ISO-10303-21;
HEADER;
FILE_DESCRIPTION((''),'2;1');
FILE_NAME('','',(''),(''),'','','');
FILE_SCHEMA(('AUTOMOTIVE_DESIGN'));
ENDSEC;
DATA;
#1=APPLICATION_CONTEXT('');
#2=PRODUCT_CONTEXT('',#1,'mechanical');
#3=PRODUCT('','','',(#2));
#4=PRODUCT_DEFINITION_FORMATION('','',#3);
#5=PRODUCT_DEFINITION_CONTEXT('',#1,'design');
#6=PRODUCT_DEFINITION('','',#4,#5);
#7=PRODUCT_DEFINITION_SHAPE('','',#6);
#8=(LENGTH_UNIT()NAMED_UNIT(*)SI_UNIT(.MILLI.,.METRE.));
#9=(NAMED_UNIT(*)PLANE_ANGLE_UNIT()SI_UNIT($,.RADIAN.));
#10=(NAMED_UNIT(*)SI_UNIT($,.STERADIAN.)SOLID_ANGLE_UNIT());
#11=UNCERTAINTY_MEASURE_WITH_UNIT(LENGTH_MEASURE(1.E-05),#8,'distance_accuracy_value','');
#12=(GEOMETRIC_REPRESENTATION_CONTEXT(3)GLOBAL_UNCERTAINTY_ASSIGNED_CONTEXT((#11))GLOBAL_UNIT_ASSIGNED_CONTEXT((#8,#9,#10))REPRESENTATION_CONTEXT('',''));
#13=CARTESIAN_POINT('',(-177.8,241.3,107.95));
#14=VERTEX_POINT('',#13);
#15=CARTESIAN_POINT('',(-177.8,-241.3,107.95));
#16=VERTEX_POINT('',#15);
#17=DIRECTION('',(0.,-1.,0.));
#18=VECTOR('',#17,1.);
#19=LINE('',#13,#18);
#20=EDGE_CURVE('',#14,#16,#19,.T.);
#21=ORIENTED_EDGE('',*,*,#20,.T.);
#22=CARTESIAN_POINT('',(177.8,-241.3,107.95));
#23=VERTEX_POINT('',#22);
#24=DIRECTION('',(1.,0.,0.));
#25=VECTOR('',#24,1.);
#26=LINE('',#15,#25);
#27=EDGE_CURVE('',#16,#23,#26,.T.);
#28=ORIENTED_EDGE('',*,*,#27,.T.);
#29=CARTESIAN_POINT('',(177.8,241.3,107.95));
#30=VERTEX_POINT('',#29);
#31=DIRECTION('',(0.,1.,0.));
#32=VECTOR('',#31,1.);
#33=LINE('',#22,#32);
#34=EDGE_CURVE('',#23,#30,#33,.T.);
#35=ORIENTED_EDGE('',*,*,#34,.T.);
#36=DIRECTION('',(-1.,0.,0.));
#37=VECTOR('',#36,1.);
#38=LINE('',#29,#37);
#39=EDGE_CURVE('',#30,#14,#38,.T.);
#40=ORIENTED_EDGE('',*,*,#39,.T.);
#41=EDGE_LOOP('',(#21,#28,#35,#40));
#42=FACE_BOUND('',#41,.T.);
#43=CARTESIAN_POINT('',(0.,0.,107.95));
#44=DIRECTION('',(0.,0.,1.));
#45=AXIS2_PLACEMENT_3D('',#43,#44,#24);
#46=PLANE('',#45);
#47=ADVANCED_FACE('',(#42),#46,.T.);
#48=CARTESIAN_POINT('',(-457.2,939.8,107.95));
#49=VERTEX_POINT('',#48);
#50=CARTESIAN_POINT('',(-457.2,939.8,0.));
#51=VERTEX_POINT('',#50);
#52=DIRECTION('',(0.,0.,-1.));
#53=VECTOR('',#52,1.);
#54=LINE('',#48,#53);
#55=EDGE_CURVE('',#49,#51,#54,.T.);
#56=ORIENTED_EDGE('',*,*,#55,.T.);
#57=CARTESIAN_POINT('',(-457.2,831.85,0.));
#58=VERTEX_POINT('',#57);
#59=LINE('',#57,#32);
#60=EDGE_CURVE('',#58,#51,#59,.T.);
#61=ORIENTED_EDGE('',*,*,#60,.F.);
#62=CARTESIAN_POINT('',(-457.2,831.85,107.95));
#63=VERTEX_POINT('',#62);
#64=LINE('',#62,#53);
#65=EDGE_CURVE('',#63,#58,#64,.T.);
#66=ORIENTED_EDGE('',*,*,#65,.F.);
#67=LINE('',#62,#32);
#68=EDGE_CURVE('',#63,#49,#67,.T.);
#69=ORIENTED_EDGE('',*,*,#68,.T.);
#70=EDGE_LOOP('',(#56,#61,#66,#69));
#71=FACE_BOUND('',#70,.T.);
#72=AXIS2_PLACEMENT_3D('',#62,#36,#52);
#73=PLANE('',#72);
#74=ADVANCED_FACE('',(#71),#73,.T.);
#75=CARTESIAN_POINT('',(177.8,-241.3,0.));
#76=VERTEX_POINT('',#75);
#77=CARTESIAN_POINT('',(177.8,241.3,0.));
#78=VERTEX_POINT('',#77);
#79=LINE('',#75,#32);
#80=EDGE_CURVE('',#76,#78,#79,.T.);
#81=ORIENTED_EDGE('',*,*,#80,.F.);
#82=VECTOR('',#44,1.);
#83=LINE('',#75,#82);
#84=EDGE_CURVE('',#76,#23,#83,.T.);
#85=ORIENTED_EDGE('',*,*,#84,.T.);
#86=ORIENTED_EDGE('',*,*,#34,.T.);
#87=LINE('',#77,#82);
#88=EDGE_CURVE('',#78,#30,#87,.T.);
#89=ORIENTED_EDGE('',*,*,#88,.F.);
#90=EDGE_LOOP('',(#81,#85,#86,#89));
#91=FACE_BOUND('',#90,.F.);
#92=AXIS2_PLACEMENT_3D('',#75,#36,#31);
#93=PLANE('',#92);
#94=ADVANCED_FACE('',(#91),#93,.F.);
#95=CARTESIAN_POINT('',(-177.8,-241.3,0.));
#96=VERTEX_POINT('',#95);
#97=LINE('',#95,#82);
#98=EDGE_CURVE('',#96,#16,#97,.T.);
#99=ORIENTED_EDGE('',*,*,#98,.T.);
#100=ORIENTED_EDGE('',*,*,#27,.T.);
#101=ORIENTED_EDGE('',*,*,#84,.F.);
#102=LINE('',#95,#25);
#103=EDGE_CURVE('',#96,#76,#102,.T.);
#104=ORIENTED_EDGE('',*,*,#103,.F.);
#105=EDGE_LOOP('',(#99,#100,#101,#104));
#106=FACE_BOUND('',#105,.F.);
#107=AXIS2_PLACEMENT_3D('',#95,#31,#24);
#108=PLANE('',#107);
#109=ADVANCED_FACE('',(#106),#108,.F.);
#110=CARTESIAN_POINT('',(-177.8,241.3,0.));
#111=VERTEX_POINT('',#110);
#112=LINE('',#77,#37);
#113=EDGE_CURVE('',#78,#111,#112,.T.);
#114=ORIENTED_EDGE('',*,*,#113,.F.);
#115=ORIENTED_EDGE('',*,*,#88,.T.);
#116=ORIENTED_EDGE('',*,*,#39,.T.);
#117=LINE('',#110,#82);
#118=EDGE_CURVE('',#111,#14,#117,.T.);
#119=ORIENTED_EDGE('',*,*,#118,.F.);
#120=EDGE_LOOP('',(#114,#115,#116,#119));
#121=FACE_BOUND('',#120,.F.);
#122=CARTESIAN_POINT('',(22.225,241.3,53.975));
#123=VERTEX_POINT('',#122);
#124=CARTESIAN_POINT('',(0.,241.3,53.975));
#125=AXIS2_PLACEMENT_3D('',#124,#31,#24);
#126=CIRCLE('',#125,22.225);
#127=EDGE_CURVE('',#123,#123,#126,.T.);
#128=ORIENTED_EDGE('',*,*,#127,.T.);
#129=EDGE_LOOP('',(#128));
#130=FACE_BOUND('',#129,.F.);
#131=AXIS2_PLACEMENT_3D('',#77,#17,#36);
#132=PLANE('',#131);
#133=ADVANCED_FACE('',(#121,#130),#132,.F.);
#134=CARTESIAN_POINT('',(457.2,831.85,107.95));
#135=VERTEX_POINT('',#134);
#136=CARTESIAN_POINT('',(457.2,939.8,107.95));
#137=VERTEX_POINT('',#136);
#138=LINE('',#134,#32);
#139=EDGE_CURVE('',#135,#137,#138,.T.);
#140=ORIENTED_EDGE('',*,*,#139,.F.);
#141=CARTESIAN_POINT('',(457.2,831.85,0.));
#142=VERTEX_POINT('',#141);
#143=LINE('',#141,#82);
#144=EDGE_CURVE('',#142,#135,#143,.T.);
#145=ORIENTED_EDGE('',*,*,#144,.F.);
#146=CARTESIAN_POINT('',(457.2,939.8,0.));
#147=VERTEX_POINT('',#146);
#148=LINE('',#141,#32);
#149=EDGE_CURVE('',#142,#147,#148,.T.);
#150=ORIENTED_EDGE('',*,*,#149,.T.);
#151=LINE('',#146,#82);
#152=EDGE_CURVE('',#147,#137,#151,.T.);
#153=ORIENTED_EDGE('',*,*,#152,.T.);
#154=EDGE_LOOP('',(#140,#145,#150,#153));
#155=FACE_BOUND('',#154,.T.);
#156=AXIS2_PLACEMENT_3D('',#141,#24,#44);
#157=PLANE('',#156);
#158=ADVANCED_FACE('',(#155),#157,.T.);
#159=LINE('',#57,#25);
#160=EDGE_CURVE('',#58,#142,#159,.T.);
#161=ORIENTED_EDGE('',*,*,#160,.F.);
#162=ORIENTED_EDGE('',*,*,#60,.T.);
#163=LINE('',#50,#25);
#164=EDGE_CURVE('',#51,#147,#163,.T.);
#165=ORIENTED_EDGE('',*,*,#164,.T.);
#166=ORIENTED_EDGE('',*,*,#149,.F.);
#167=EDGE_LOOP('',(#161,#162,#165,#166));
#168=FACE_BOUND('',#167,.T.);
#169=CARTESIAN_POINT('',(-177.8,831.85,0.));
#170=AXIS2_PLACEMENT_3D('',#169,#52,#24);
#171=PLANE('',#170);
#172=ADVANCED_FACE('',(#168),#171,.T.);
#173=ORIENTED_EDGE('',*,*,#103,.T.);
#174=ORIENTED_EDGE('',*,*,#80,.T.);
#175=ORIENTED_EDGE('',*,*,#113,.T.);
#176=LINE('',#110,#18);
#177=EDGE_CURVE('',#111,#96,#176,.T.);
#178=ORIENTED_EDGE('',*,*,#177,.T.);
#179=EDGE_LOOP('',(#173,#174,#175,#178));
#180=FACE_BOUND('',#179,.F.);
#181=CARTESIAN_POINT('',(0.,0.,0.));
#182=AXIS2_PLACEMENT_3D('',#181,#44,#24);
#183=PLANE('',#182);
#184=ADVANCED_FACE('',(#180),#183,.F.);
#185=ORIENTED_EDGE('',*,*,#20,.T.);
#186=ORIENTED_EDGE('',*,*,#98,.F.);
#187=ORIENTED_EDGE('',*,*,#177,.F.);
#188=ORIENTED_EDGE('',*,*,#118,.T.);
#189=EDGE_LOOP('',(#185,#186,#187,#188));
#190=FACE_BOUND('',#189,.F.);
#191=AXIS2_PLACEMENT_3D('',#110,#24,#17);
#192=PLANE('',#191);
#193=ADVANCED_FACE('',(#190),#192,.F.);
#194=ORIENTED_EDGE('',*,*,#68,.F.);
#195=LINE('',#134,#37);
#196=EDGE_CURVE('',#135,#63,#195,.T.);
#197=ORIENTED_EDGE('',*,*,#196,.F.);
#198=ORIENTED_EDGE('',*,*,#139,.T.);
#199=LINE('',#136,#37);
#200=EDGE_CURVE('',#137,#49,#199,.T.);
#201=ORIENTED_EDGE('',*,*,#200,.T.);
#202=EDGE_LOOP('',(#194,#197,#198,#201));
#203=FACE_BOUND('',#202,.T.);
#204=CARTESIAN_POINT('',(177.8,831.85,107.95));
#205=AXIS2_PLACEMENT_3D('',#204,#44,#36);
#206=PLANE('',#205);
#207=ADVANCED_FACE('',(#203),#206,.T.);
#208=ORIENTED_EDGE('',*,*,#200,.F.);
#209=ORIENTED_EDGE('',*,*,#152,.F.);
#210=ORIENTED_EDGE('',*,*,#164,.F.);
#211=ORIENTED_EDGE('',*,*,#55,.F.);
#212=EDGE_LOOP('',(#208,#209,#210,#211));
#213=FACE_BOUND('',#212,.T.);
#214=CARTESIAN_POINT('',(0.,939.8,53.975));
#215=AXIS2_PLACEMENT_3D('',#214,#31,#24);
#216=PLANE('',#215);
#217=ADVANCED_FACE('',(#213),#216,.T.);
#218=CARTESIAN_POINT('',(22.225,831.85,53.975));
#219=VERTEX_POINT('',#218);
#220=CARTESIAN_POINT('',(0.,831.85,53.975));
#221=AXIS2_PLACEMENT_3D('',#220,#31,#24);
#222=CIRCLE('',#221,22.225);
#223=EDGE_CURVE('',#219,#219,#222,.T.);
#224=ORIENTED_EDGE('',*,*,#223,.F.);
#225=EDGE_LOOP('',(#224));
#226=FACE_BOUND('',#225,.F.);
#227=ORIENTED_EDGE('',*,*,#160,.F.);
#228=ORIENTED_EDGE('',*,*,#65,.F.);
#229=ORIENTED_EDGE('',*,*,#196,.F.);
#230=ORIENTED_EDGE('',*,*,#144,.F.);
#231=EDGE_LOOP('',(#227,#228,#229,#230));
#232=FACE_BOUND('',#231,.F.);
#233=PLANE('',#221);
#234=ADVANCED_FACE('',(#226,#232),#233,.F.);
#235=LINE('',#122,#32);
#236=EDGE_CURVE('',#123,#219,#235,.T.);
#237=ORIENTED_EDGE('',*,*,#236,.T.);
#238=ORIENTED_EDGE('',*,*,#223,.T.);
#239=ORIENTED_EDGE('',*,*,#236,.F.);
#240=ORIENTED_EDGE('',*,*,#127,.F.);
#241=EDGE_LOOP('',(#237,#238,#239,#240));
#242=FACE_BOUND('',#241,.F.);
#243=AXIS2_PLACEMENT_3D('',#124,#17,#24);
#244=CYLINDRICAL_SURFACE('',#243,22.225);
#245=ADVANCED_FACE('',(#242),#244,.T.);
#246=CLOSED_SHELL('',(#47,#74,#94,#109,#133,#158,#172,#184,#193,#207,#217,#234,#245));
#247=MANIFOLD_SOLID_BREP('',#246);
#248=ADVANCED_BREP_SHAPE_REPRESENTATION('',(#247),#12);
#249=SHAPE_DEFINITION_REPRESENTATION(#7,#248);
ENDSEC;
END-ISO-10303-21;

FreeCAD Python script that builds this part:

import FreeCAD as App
import Part
import Sketcher
from FreeCAD import Vector
Q = App.Units.Quantity


def add_polygon(sketch, points):
    """Adds a closed chain of lines whose ends are joined by coincident constraints."""
    first, n = sketch.GeometryCount, len(points)
    for a, b in zip(points, points[1:] + points[:1]):
        sketch.addGeometry(Part.LineSegment(App.Vector(*a, 0), App.Vector(*b, 0)), False)
    for i in range(n):
        sketch.addConstraint(Sketcher.Constraint("Coincident", first + i, 2, first + (i + 1) % n, 1))

doc = App.newDocument("Part")
params = doc.addObject("Spreadsheet::Sheet", "Params")
for row, (alias, value) in enumerate([
    ("sketch1_width", "14 in"),
    ("sketch1_height", "19 in"),
    ("pad1_length", "4.25 in"),
    ("sketch2_diameter", "1.75 in"),
    ("pad2_length", "23.25 in"),
    ("sketch3_width", "36 in"),
    ("sketch3_height", "4.25 in"),
    ("pad3_length", "4.25 in"),
], start=1):
    params.set(f"A{row}", alias)
    params.set(f"B{row}", "=" + value)
    params.setAlias(f"B{row}", alias)

body = doc.addObject("PartDesign::Body", "Body")

sketch1 = doc.addObject("Sketcher::SketchObject", "Sketch")
body.addObject(sketch1)
sketch1.AttachmentSupport = (doc.XY_Plane, [""])
sketch1.MapMode = "FlatFace"
add_polygon(sketch1, [(-177.8, 241.3), (-177.8, -241.3), (177.8, -241.3), (177.8, 241.3)])
sketch1.addConstraint([
    Sketcher.Constraint("Vertical", 0),
    Sketcher.Constraint("Horizontal", 1),
    Sketcher.Constraint("Vertical", 2),
    Sketcher.Constraint("Horizontal", 3),
    Sketcher.Constraint("Symmetric", 0, 2, 2, 2, -1, 1),
    Sketcher.Constraint("DistanceX", 1, 1, 1, 2, Q("14 in")),
    Sketcher.Constraint("DistanceY", 0, 2, 0, 1, Q("19 in")),
])
sketch1.setExpression("Constraints[9]", "Params.sketch1_width")
sketch1.setExpression("Constraints[10]", "Params.sketch1_height")
pad1 = doc.addObject("PartDesign::Pad", "Pad")
body.addObject(pad1)
pad1.Profile = sketch1
pad1.setExpression("Length", "Params.pad1_length")

sketch2 = doc.addObject("Sketcher::SketchObject", "Sketch001")
body.addObject(sketch2)
sketch2.AttachmentSupport = (doc.XZ_Plane, [""])
sketch2.MapMode = "FlatFace"
sketch2.AttachmentOffset = App.Placement(Vector(0, 0, -9.5 * 25.4), App.Rotation())
sketch2.addGeometry(Part.Circle(Vector(0, 53.975, 0), Vector(0, 0, 1), 22.225), False)
sketch2.addConstraint([
    Sketcher.Constraint("PointOnObject", 0, 3, -2),
    Sketcher.Constraint("Diameter", 0, Q("1.75 in")),
    Sketcher.Constraint("DistanceY", -1, 1, 0, 3, Q("2.125 in")),
])
sketch2.setExpression("Constraints[1]", "Params.sketch2_diameter")
pad2 = doc.addObject("PartDesign::Pad", "Pad001")
body.addObject(pad2)
pad2.Profile = sketch2
pad2.setExpression("Length", "Params.pad2_length")
pad2.Reversed = True

sketch3 = doc.addObject("Sketcher::SketchObject", "Sketch002")
body.addObject(sketch3)
sketch3.AttachmentSupport = (doc.XZ_Plane, [""])
sketch3.MapMode = "FlatFace"
sketch3.AttachmentOffset = App.Placement(Vector(0, 0, -32.75 * 25.4), App.Rotation())
add_polygon(sketch3, [(-457.2, 0), (-457.2, 107.95), (457.2, 107.95), (457.2, 0)])
sketch3.addConstraint([
    Sketcher.Constraint("Vertical", 0),
    Sketcher.Constraint("Horizontal", 1),
    Sketcher.Constraint("Vertical", 2),
    Sketcher.Constraint("Horizontal", 3),
    Sketcher.Constraint("Symmetric", 2, 2, 3, 2, -1, 1),
    Sketcher.Constraint("DistanceX", 1, 1, 1, 2, Q("36 in")),
    Sketcher.Constraint("DistanceY", 0, 1, 0, 2, Q("4.25 in")),
])
sketch3.setExpression("Constraints[9]", "Params.sketch3_width")
sketch3.setExpression("Constraints[10]", "Params.sketch3_height")
pad3 = doc.addObject("PartDesign::Pad", "Pad002")
body.addObject(pad3)
pad3.Profile = sketch3
pad3.setExpression("Length", "Params.pad3_length")
pad3.Reversed = True

doc.recompute()
